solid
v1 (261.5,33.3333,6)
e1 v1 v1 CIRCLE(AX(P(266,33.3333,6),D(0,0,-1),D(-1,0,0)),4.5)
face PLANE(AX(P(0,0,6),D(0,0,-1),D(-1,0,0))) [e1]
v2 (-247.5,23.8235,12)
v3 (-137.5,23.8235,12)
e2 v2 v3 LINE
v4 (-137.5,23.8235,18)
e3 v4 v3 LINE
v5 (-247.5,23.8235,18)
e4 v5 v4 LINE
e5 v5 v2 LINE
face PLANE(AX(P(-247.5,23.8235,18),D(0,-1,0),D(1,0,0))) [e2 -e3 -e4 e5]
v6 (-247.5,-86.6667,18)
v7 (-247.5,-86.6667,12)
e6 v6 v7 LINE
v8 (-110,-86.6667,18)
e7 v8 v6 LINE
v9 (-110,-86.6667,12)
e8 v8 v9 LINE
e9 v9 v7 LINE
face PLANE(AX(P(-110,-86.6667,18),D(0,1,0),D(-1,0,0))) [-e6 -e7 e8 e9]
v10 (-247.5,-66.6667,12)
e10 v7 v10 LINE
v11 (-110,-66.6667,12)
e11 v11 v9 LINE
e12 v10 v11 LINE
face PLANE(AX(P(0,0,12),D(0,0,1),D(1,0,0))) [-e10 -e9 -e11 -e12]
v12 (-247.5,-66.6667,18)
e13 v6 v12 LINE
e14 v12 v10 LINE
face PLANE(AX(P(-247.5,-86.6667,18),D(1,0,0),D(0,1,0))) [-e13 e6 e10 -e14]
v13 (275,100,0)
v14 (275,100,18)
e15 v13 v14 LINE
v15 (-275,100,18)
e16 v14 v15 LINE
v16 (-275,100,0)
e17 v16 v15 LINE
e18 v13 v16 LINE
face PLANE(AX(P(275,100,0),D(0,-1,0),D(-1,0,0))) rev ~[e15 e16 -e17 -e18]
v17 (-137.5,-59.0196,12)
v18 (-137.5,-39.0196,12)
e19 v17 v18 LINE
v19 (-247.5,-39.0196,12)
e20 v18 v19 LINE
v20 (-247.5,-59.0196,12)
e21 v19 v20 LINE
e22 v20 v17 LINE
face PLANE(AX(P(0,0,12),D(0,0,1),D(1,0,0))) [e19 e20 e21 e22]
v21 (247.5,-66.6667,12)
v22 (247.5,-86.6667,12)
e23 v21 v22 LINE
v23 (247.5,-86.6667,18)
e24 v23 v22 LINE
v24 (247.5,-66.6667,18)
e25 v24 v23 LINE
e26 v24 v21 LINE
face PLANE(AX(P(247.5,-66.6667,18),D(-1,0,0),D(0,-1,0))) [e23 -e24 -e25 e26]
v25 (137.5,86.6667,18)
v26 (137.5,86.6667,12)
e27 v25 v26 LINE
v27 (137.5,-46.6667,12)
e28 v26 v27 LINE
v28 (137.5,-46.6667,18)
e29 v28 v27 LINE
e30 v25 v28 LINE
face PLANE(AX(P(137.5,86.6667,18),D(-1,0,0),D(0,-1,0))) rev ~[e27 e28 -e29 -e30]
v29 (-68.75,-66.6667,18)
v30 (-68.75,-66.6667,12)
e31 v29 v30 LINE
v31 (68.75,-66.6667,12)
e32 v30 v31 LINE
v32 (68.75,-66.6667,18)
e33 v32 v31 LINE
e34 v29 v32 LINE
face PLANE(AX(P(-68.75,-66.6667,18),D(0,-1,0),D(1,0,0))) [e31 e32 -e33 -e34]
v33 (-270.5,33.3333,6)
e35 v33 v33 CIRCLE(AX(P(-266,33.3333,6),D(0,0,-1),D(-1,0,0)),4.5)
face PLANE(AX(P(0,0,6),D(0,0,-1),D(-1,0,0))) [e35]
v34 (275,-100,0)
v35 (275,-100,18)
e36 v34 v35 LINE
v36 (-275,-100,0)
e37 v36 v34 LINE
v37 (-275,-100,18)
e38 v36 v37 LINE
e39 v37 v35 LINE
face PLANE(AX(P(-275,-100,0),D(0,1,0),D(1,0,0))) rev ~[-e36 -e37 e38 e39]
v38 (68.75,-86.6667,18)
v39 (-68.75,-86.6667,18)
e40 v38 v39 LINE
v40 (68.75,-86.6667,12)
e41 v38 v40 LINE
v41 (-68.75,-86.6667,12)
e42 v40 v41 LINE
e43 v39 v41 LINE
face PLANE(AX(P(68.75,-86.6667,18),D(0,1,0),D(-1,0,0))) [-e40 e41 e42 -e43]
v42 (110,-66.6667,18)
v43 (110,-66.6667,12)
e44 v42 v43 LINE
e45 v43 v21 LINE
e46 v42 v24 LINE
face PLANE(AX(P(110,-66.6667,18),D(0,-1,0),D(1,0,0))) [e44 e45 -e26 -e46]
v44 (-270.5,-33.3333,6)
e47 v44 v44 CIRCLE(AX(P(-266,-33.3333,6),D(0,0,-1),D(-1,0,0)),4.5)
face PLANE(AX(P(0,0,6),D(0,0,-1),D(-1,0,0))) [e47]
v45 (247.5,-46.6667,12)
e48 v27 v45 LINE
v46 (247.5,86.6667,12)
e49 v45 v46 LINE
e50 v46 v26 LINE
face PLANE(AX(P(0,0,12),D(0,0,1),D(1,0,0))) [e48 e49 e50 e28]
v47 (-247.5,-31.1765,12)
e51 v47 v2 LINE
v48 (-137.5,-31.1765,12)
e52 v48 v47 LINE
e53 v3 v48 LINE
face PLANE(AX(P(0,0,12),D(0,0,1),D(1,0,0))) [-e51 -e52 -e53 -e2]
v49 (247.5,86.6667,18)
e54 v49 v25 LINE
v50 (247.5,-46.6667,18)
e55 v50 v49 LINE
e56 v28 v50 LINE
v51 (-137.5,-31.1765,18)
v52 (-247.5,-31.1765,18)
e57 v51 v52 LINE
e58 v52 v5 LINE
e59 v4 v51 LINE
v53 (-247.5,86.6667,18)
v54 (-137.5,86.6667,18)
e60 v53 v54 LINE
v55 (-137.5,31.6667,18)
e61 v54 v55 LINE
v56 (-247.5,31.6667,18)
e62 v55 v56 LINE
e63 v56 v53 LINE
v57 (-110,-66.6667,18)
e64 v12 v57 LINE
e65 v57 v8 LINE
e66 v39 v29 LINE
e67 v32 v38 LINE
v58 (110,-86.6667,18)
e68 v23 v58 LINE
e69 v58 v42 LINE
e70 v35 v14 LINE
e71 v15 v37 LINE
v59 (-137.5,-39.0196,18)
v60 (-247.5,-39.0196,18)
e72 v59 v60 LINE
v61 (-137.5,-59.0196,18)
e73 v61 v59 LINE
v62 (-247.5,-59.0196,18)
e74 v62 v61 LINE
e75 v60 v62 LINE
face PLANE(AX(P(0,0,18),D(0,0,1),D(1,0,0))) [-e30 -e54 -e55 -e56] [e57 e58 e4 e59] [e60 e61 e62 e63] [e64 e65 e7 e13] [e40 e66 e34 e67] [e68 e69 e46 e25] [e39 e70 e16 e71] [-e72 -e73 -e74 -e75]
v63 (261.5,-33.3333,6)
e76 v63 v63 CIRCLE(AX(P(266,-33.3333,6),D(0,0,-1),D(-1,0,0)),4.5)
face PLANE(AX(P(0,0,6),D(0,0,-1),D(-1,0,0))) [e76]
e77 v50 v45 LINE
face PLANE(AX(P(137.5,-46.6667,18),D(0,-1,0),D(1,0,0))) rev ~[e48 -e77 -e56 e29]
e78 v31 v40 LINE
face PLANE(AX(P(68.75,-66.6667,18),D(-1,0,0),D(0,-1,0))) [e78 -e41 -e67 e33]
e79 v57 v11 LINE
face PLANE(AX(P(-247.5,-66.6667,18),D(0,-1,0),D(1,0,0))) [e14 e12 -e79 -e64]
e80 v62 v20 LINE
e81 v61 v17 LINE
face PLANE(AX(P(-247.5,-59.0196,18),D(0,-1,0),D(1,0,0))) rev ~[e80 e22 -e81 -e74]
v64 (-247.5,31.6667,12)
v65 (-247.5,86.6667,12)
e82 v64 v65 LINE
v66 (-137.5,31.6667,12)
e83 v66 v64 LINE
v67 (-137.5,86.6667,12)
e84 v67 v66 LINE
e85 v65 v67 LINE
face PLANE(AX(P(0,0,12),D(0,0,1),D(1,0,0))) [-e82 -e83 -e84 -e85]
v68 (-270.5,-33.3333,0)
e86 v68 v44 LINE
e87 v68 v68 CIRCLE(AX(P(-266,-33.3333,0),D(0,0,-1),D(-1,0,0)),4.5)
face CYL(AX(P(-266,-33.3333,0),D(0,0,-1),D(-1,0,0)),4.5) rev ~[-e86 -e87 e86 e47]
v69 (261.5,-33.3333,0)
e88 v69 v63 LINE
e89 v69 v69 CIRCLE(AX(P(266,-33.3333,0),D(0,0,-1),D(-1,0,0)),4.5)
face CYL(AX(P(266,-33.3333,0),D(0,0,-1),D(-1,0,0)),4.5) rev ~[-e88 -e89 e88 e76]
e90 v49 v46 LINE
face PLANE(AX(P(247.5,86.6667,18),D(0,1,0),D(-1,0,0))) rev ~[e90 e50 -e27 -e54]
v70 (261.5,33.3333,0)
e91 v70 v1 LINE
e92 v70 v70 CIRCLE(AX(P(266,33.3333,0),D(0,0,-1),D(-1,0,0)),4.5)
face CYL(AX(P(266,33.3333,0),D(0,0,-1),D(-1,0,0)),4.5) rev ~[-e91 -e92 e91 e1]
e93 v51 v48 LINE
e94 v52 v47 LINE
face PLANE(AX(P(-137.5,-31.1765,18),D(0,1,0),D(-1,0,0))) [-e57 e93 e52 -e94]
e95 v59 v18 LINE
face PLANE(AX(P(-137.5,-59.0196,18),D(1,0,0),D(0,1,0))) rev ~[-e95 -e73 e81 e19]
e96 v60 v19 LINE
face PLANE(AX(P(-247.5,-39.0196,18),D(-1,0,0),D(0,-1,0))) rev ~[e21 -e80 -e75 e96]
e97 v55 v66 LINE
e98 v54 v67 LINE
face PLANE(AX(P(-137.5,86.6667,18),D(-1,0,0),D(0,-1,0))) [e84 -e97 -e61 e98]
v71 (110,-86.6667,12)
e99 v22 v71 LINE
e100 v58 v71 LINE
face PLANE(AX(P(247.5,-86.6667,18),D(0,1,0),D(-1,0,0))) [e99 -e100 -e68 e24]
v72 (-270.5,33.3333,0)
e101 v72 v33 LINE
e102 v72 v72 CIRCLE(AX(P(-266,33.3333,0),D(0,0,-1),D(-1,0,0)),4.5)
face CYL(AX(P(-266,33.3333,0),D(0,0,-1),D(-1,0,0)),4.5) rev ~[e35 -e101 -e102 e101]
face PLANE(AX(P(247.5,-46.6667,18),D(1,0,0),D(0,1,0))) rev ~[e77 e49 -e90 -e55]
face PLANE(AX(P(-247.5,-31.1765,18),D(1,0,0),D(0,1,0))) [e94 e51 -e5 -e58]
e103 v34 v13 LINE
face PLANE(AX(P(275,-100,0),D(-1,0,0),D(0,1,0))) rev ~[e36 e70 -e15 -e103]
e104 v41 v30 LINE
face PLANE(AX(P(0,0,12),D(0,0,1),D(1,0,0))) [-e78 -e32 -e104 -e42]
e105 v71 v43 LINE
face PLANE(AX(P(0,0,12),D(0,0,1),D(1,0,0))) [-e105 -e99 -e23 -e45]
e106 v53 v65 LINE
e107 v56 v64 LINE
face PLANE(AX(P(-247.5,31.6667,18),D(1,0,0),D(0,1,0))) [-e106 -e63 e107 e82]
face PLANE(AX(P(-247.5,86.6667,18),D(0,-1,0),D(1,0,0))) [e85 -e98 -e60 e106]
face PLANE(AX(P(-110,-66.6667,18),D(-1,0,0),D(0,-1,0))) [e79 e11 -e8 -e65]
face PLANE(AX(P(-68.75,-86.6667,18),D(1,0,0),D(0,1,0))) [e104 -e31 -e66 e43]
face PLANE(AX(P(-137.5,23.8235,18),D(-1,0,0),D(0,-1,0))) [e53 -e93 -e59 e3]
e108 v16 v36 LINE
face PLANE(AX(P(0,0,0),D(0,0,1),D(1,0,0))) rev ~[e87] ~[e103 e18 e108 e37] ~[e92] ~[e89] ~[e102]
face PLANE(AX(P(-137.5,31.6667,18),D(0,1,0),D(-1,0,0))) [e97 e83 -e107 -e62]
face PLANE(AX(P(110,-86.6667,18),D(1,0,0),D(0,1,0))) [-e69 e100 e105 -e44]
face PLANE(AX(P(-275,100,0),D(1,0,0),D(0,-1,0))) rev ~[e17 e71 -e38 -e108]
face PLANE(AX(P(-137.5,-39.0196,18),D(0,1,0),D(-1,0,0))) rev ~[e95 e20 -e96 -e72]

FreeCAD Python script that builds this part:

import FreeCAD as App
import Part
import Sketcher
Q = App.Units.Quantity


def add_polygon(sketch, points):
    """Adds a closed chain of lines whose ends are joined by coincident constraints."""
    first, n = sketch.GeometryCount, len(points)
    for a, b in zip(points, points[1:] + points[:1]):
        sketch.addGeometry(Part.LineSegment(App.Vector(*a, 0), App.Vector(*b, 0)), False)
    for i in range(n):
        sketch.addConstraint(Sketcher.Constraint("Coincident", first + i, 2, first + (i + 1) % n, 1))

doc = App.newDocument("Part")
body = doc.addObject("PartDesign::Body", "Body")

# Sketch on XY plane
sketch1 = body.newObject("Sketcher::SketchObject", "Sketch")
sketch1.AttachmentSupport = (doc.getObject("XY_Plane"), [""])
sketch1.MapMode = "FlatFace"
add_polygon(sketch1, [(-275, 100), (-275, -100), (275, -100), (275, 100)])  # lines 0-3
sketch1.addConstraint([
    Sketcher.Constraint("Vertical", 0),
    Sketcher.Constraint("Horizontal", 1),
    Sketcher.Constraint("Vertical", 2),
    Sketcher.Constraint("Horizontal", 3),
    Sketcher.Constraint("Symmetric", 0, 2, 2, 2, -1, 1),
    Sketcher.Constraint("DistanceX", 1, 1, 1, 2, Q("550 mm")),
    Sketcher.Constraint("DistanceY", 0, 2, 0, 1, Q("200 mm")),
])
pad1 = body.newObject("PartDesign::Pad", "Pad")
pad1.Profile = sketch1
pad1.Length = 18

# Sketch on XY plane
sketch2 = body.newObject("Sketcher::SketchObject", "Sketch001")
sketch2.AttachmentSupport = (doc.getObject("XY_Plane"), [""])
sketch2.MapMode = "FlatFace"
sketch2.AttachmentOffset = App.Placement(App.Vector(0, 0, 18), App.Rotation())
add_polygon(sketch2, [(110, -86.6667), (247.5, -86.6667), (247.5, -66.6667), (110, -66.6667)])  # lines 0-3
add_polygon(sketch2, [(-247.5, -86.6667), (-110, -86.6667), (-110, -66.6667), (-247.5, -66.6667)])  # lines 4-7
add_polygon(sketch2, [(-68.75, -86.6667), (68.75, -86.6667), (68.75, -66.6667), (-68.75, -66.6667)])  # lines 8-11
add_polygon(sketch2, [(247.5, -46.6667), (247.5, 86.6667), (137.5, 86.6667), (137.5, -46.6667)])  # lines 12-15
add_polygon(sketch2, [(-137.5, 86.6667), (-247.5, 86.6667), (-247.5, 31.6667), (-137.5, 31.6667)])  # lines 16-19
add_polygon(sketch2, [(-137.5, 23.8235), (-247.5, 23.8235), (-247.5, -31.1765), (-137.5, -31.1765)])  # lines 20-23
add_polygon(sketch2, [(-247.5, -39.0196), (-247.5, -59.0196), (-137.5, -59.0196), (-137.5, -39.0196)])  # lines 24-27
sketch2.addConstraint([
    Sketcher.Constraint("Horizontal", 0),
    Sketcher.Constraint("Vertical", 1),
    Sketcher.Constraint("Horizontal", 2),
    Sketcher.Constraint("Vertical", 3),
    Sketcher.Constraint("Horizontal", 4),
    Sketcher.Constraint("Vertical", 5),
    Sketcher.Constraint("Horizontal", 6),
    Sketcher.Constraint("Vertical", 7),
    Sketcher.Constraint("Horizontal", 8),
    Sketcher.Constraint("Vertical", 9),
    Sketcher.Constraint("Horizontal", 10),
    Sketcher.Constraint("Vertical", 11),
    Sketcher.Constraint("Vertical", 12),
    Sketcher.Constraint("Horizontal", 13),
    Sketcher.Constraint("Vertical", 14),
    Sketcher.Constraint("Horizontal", 15),
    Sketcher.Constraint("Horizontal", 16),
    Sketcher.Constraint("Vertical", 17),
    Sketcher.Constraint("Horizontal", 18),
    Sketcher.Constraint("Vertical", 19),
    Sketcher.Constraint("Horizontal", 20),
    Sketcher.Constraint("Vertical", 21),
    Sketcher.Constraint("Horizontal", 22),
    Sketcher.Constraint("Vertical", 23),
    Sketcher.Constraint("Vertical", 24),
    Sketcher.Constraint("Horizontal", 25),
    Sketcher.Constraint("Vertical", 26),
    Sketcher.Constraint("Horizontal", 27),
    Sketcher.Constraint("Symmetric", 7, 2, 12, 2, -1, 1),
    Sketcher.Constraint("Symmetric", 0, 2, 16, 2, -1, 1),
    Sketcher.Constraint("Symmetric", 3, 2, 4, 2, -2),
    Sketcher.Constraint("Symmetric", 1, 2, 6, 2, -2),
    Sketcher.Constraint("Horizontal", 7, 2, 8, 2),
    Sketcher.Constraint("Horizontal", 6, 2, 9, 2),
    Sketcher.Constraint("Vertical", 17, 2, 20, 2),
    Sketcher.Constraint("Vertical", 19, 2, 22, 2),
    Sketcher.Constraint("Vertical", 21, 2, 24, 2),
    Sketcher.Constraint("Vertical", 23, 2, 25, 2),
    Sketcher.Constraint("Equal", 6, 8),
    Sketcher.Constraint("Equal", 15, 16),
    Sketcher.Constraint("Equal", 19, 21),
    Sketcher.Constraint("Equal", 11, 24),
    Sketcher.Constraint("DistanceX", 13, 2, 13, 1, Q("110 mm")),
    Sketcher.Constraint("DistanceY", 1, 1, 1, 2, Q("20 mm")),
    Sketcher.Constraint("DistanceY", 17, 2, 17, 1, Q("55 mm")),
    Sketcher.Constraint("DistanceX", 0, 1, 0, 2, Q("137.5 mm")),
    Sketcher.Constraint("DistanceX", -1, 1, 2, 2, Q("110 mm")),
    Sketcher.Constraint("DistanceY", 2, 2, 14, 2, Q("20 mm")),
    Sketcher.Constraint("DistanceX", 8, 2, 3, 2, Q("41.25 mm")),
    Sketcher.Constraint("DistanceY", 12, 1, 12, 2, Q("133.3334 mm")),
    Sketcher.Constraint("DistanceY", 6, 2, 24, 2, Q("7.647 mm")),
    Sketcher.Constraint("DistanceY", 26, 2, 22, 2, Q("7.843 mm")),
])
pocket1 = body.newObject("PartDesign::Pocket", "Pocket")
pocket1.Profile = sketch2
pocket1.Length = 6

# Sketch on XY plane
sketch3 = body.newObject("Sketcher::SketchObject", "Sketch002")
sketch3.AttachmentSupport = (doc.getObject("XY_Plane"), [""])
sketch3.MapMode = "FlatFace"
sketch3.addGeometry([
    Part.Circle(App.Vector(-266, -33.3333, 0), App.Vector(0, 0, 1), 4.5),
    Part.Circle(App.Vector(-266, 33.3333, 0), App.Vector(0, 0, 1), 4.5),
    Part.Circle(App.Vector(266, 33.3333, 0), App.Vector(0, 0, 1), 4.5),
    Part.Circle(App.Vector(266, -33.3333, 0), App.Vector(0, 0, 1), 4.5),
], False)
sketch3.addConstraint([
    Sketcher.Constraint("Equal", 0, 1),
    Sketcher.Constraint("Equal", 1, 2),
    Sketcher.Constraint("Equal", 2, 3),
    Sketcher.Constraint("Symmetric", 0, 3, 2, 3, -1, 1),
    Sketcher.Constraint("Symmetric", 1, 3, 3, 3, -1, 1),
    Sketcher.Constraint("Symmetric", 1, 3, 2, 3, -2),
    Sketcher.Constraint("Diameter", 0, Q("9 mm")),
    Sketcher.Constraint("DistanceX", 0, 3, -1, 1, Q("266 mm")),
    Sketcher.Constraint("DistanceY", 0, 3, 1, 3, Q("66.6666 mm")),
])
pocket2 = body.newObject("PartDesign::Pocket", "Pocket001")
pocket2.Profile = sketch3
pocket2.Length = 6
pocket2.Reversed = True

doc.recompute()
